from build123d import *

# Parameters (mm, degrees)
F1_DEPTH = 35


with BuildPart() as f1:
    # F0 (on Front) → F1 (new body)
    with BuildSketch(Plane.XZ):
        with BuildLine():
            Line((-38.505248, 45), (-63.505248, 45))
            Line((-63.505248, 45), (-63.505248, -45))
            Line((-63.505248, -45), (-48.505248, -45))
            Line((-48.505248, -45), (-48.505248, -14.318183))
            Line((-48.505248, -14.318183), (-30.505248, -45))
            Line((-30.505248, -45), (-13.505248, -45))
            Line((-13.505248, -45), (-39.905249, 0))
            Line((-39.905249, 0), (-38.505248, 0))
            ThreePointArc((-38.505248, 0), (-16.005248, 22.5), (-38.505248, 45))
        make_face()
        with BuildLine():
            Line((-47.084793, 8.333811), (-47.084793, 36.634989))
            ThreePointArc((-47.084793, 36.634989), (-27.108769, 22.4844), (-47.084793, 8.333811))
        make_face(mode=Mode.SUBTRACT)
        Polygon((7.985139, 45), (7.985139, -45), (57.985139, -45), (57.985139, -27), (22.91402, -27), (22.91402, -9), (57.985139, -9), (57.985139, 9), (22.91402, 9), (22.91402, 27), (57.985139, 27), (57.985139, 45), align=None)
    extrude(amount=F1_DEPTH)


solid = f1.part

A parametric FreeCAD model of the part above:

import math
import FreeCAD as App
import Part
import Sketcher
from FreeCAD import Vector


def add_polygon(sketch, points):
    """Adds a closed chain of lines whose ends are joined by coincident constraints."""
    first, n = sketch.GeometryCount, len(points)
    for a, b in zip(points, points[1:] + points[:1]):
        sketch.addGeometry(Part.LineSegment(App.Vector(*a, 0), App.Vector(*b, 0)), False)
    for i in range(n):
        sketch.addConstraint(Sketcher.Constraint("Coincident", first + i, 2, first + (i + 1) % n, 1))

doc = App.newDocument("Part")
body = doc.addObject("PartDesign::Body", "Body")
body.AllowCompound = True

# Sketch on XZ plane
sketch1 = body.newObject("Sketcher::SketchObject", "Sketch")
sketch1.AttachmentSupport = (doc.getObject("XZ_Plane"), [""])
sketch1.MapMode = "FlatFace"
sketch1.addGeometry(Part.LineSegment(Vector(-38.5, 45, 0), Vector(-63.5, 45, 0)), False)  # 0
sketch1.addGeometry(Part.LineSegment(Vector(-63.5, 45, 0), Vector(-63.5, -45, 0)), False)  # 1
sketch1.addGeometry(Part.LineSegment(Vector(-63.5, -45, 0), Vector(-48.5, -45, 0)), False)  # 2
sketch1.addGeometry(Part.LineSegment(Vector(-48.5, -45, 0), Vector(-48.5, -14.3, 0)), False)  # 3
sketch1.addGeometry(Part.LineSegment(Vector(-48.5, -14.3, 0), Vector(-30.5, -45, 0)), False)  # 4
sketch1.addGeometry(Part.LineSegment(Vector(-30.5, -45, 0), Vector(-13.5, -45, 0)), False)  # 5
sketch1.addGeometry(Part.LineSegment(Vector(-13.5, -45, 0), Vector(-39.9, 0, 0)), False)  # 6
sketch1.addGeometry(Part.LineSegment(Vector(-39.9, 0, 0), Vector(-38.5, 0, 0)), False)  # 7
sketch1.addGeometry(Part.ArcOfCircle(Part.Circle(Vector(-38.5, 22.5, 0), Vector(0, 0, 1), 22.5), math.radians(-90), math.radians(90)), False)  # 8
sketch1.addGeometry(Part.ArcOfCircle(Part.Circle(Vector(-42.1, 22.5, 0), Vector(0, 0, 1), 15), math.radians(-109), math.radians(109)), False)  # 9
sketch1.addGeometry(Part.LineSegment(Vector(-47.1, 8.3, 0), Vector(-47.1, 36.6, 0)), False)  # 10
add_polygon(sketch1, [(8, 45), (8, -45), (58, -45), (58, -27), (22.9, -27), (22.9, -9), (58, -9), (58, 9), (22.9, 9), (22.9, 27), (58, 27), (58, 45)])  # lines 11-22
sketch1.addConstraint([
    Sketcher.Constraint("Coincident", 0, 2, 1, 1),
    Sketcher.Constraint("Coincident", 1, 2, 2, 1),
    Sketcher.Constraint("Coincident", 2, 2, 3, 1),
    Sketcher.Constraint("Coincident", 3, 2, 4, 1),
    Sketcher.Constraint("Coincident", 4, 2, 5, 1),
    Sketcher.Constraint("Coincident", 5, 2, 6, 1),
    Sketcher.Constraint("Coincident", 6, 2, 7, 1),
    Sketcher.Constraint("Tangent", 7, 2, 8, 1),
    Sketcher.Constraint("Tangent", 8, 2, 0, 1),
    Sketcher.Constraint("Coincident", 9, 1, 10, 1),
    Sketcher.Constraint("Coincident", 10, 2, 9, 2),
    Sketcher.Constraint("Horizontal", 0),
    Sketcher.Constraint("Vertical", 1),
    Sketcher.Constraint("Horizontal", 2),
    Sketcher.Constraint("Vertical", 3),
    Sketcher.Constraint("Horizontal", 5),
    Sketcher.Constraint("Horizontal", 7),
    Sketcher.Constraint("Vertical", 10),
    Sketcher.Constraint("Vertical", 11),
    Sketcher.Constraint("Horizontal", 12),
    Sketcher.Constraint("Vertical", 13),
    Sketcher.Constraint("Horizontal", 14),
    Sketcher.Constraint("Vertical", 15),
    Sketcher.Constraint("Horizontal", 16),
    Sketcher.Constraint("Vertical", 17),
    Sketcher.Constraint("Horizontal", 18),
    Sketcher.Constraint("Vertical", 19),
    Sketcher.Constraint("Horizontal", 20),
    Sketcher.Constraint("Vertical", 21),
    Sketcher.Constraint("Horizontal", 22),
    Sketcher.Constraint("Symmetric", 15, 2, 18, 2, -1),
    Sketcher.Constraint("Symmetric", 13, 2, 20, 2, -1),
    Sketcher.Constraint("PointOnObject", 6, 2, -1),
    Sketcher.Constraint("Parallel", 4, 6),
    Sketcher.Constraint("Horizontal", 2, 2, 4, 2),
    Sketcher.Constraint("Horizontal", 5, 2, 11, 2),
    Sketcher.Constraint("Horizontal", 8, 2, 21, 2),
    Sketcher.Constraint("Vertical", 13, 2, 16, 2),
    Sketcher.Constraint("Equal", 13, 15),
    Sketcher.Constraint("Equal", 15, 17),
    Sketcher.Constraint("Equal", 19, 21),
    Sketcher.Constraint("Radius", 9, 15.0),
    Sketcher.Constraint("Radius", 8, 22.5),
    Sketcher.Constraint("DistanceX", 0, 2, 0, 1, 25.0),
    Sketcher.Constraint("DistanceX", 2, 1, 2, 2, 15.0),
    Sketcher.Constraint("DistanceX", 5, 1, 5, 2, 17.0),
    Sketcher.Constraint("DistanceX", 12, 1, 12, 2, 50.0),
    Sketcher.Constraint("DistanceX", 7, 1, 7, 2, 1.400001),
    Sketcher.Constraint("DistanceX", 2, 2, 4, 2, 18.0),
    Sketcher.Constraint("DistanceX", 14, 2, 14, 1, 35.071119),
    Sketcher.Constraint("DistanceY", -1, 1, 9, 3, 22.4844),
    Sketcher.Constraint("DistanceY", 10, 1, 10, 2, 28.301178),
    Sketcher.Constraint("DistanceX", 8, 3, -1, 1, 38.505248),
    Sketcher.Constraint("DistanceX", 9, 3, -1, 1, 42.108769),
    Sketcher.Constraint("DistanceX", -1, 1, 11, 2, 7.985139),
])
pad1 = body.newObject("PartDesign::Pad", "Pad")
pad1.Profile = sketch1
pad1.Length = 35

doc.recompute()
